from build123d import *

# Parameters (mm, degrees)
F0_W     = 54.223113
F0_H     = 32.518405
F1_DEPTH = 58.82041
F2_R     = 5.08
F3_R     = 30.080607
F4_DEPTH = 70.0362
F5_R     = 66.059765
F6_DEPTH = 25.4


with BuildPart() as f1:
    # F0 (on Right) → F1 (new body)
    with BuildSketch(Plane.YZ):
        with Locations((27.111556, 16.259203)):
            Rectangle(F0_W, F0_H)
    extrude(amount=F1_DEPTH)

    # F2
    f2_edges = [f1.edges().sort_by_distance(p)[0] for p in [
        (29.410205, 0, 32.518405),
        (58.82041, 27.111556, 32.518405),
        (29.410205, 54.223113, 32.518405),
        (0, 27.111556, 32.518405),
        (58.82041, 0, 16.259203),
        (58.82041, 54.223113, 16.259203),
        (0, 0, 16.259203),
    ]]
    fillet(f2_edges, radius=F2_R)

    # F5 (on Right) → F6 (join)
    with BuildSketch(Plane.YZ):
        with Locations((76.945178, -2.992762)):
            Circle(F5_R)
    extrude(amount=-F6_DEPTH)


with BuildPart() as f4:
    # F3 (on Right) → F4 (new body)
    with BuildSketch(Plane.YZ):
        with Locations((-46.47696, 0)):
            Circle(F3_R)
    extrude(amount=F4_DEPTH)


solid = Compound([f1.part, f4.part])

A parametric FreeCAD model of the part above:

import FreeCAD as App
import Part
import Sketcher

V = App.Vector
Q = App.Units.Quantity


def edges_at(feature, points):
    """Names of the edges that pass closest to the given points."""
    edges = feature.Shape.Edges
    near = lambda p: min(range(len(edges)), key=lambda i: edges[i].distToShape(Part.Vertex(*p))[0])
    return sorted({f"Edge{near(p) + 1}" for p in points})

doc = App.newDocument("Part")
body = doc.addObject("PartDesign::Body", "Body")

# Sketch on YZ plane
sketch1 = body.newObject("Sketcher::SketchObject", "Sketch")
sketch1.AttachmentSupport = (doc.getObject("YZ_Plane"), [""])
sketch1.MapMode = "FlatFace"
sketch1.addGeometry([
    Part.LineSegment(V(0, 33, 0), V(0, 0, 0)),
    Part.LineSegment(V(0, 0, 0), V(54, 0, 0)),
    Part.LineSegment(V(54, 0, 0), V(54, 33, 0)),
    Part.LineSegment(V(54, 33, 0), V(0, 33, 0)),
], False)
sketch1.addConstraint([
    Sketcher.Constraint("Coincident", 0, 2, 1, 1),
    Sketcher.Constraint("Coincident", 1, 2, 2, 1),
    Sketcher.Constraint("Coincident", 2, 2, 3, 1),
    Sketcher.Constraint("Coincident", 3, 2, 0, 1),
    Sketcher.Constraint("Vertical", 0),
    Sketcher.Constraint("Horizontal", 1),
    Sketcher.Constraint("Vertical", 2),
    Sketcher.Constraint("Horizontal", 3),
    Sketcher.Constraint("Coincident", 0, 2, -1, 1),
    Sketcher.Constraint("DistanceX", 1, 1, 1, 2, 54.223113),
    Sketcher.Constraint("DistanceY", 0, 2, 0, 1, 32.518405),
])
pad1 = body.newObject("PartDesign::Pad", "Pad")
pad1.Profile = sketch1
pad1.Length = 58.82041
doc.recompute()

fillet = body.newObject("PartDesign::Fillet", "Fillet")
fillet.Base = (pad1, edges_at(pad1, [
    (29.41, 0, 32.518),
    (58.82, 27.112, 32.518),
    (29.41, 54.223, 32.518),
    (0, 27.112, 32.518),
    (58.82, 0, 16.259),
    (58.82, 54.223, 16.259),
    (0, 0, 16.259),
]))
fillet.Radius = Q("0.2 in")

# Sketch on YZ plane
sketch2 = body.newObject("Sketcher::SketchObject", "Sketch001")
sketch2.AttachmentSupport = (doc.getObject("YZ_Plane"), [""])
sketch2.MapMode = "FlatFace"
sketch2.addGeometry(Part.Circle(V(77, -3, 0), V(0, 0, 1), 66), False)
sketch2.addConstraint([
    Sketcher.Constraint("Diameter", 0, 132.11953),
    Sketcher.Constraint("DistanceX", -1, 1, 0, 3, 76.945178),
    Sketcher.Constraint("DistanceY", 0, 3, -1, 1, 2.992762),
])
pad2 = body.newObject("PartDesign::Pad", "Pad001")
pad2.Profile = sketch2
pad2.Length = Q("1 in")
pad2.Reversed = True
body2 = doc.addObject("PartDesign::Body", "Body001")

# Sketch on YZ plane
sketch3 = body2.newObject("Sketcher::SketchObject", "Sketch002")
sketch3.AttachmentSupport = (doc.getObject("YZ_Plane001"), [""])
sketch3.MapMode = "FlatFace"
sketch3.addGeometry(Part.Circle(V(-46, 0, 0), V(0, 0, 1), 30), False)
sketch3.addConstraint([
    Sketcher.Constraint("PointOnObject", 0, 3, -1),
    Sketcher.Constraint("Diameter", 0, 60.161214),
    Sketcher.Constraint("DistanceX", 0, 3, -1, 1, 46.47696),
])
pad3 = body2.newObject("PartDesign::Pad", "Pad002")
pad3.Profile = sketch3
pad3.Length = 70.0362

doc.recompute()
